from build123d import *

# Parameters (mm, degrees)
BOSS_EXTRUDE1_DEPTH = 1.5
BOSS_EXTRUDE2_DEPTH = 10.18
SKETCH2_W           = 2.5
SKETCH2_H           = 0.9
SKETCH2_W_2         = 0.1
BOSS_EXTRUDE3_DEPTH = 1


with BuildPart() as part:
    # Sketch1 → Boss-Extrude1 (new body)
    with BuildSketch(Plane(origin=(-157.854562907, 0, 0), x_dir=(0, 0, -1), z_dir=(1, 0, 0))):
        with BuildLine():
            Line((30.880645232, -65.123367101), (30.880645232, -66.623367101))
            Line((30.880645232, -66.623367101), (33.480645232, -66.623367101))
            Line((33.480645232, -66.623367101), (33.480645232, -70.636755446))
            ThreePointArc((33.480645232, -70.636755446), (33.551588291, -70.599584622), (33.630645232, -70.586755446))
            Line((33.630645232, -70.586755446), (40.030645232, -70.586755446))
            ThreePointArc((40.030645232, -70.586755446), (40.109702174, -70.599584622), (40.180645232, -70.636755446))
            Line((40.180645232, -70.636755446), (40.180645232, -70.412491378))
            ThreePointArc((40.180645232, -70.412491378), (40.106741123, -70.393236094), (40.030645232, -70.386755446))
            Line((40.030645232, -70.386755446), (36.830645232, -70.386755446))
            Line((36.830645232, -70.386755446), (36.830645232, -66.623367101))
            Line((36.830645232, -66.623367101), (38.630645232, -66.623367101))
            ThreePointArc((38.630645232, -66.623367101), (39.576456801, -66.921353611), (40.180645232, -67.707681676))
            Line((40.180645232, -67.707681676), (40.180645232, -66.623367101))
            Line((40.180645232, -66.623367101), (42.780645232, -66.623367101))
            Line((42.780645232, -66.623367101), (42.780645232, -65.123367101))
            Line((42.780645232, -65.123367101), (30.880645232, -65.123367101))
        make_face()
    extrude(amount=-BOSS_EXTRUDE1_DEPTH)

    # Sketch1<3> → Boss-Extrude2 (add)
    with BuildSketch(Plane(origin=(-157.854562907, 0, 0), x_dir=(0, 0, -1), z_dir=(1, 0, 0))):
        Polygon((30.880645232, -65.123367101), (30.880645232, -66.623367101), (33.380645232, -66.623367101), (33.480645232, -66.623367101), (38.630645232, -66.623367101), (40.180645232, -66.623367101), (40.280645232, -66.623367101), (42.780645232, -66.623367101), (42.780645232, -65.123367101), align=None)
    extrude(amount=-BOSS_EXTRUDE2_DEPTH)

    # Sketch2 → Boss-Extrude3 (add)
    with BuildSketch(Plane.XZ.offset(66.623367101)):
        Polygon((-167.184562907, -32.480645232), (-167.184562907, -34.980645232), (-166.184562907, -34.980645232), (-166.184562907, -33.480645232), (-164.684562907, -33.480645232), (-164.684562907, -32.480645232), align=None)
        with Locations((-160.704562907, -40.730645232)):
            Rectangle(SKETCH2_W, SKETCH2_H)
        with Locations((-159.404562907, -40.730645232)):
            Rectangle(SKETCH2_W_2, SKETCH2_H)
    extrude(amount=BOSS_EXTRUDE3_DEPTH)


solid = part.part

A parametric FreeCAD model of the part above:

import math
import FreeCAD as App
import Part
import Sketcher


def add_polygon(sketch, points):
    """Adds a closed chain of lines whose ends are joined by coincident constraints."""
    first, n = sketch.GeometryCount, len(points)
    for a, b in zip(points, points[1:] + points[:1]):
        sketch.addGeometry(Part.LineSegment(App.Vector(*a, 0), App.Vector(*b, 0)), False)
    for i in range(n):
        sketch.addConstraint(Sketcher.Constraint("Coincident", first + i, 2, first + (i + 1) % n, 1))

doc = App.newDocument("Part")
body = doc.addObject("PartDesign::Body", "Body")

# Sketch on YZ plane
sketch1 = body.newObject("Sketcher::SketchObject", "Sketch")
sketch1.AttachmentSupport = (doc.getObject("YZ_Plane"), [""])
sketch1.MapMode = "FlatFace"
sketch1.AttachmentOffset = App.Placement(App.Vector(0, 0, -157.854563), App.Rotation())
sketch1.addGeometry([
    Part.LineSegment(App.Vector(-65.12, -30.88, 0), App.Vector(-66.62, -30.88, 0)),  # 0
    Part.LineSegment(App.Vector(-66.62, -30.88, 0), App.Vector(-66.62, -33.48, 0)),  # 1
    Part.LineSegment(App.Vector(-66.62, -33.48, 0), App.Vector(-70.64, -33.48, 0)),  # 2
    Part.ArcOfCircle(Part.Circle(App.Vector(-70.84, -33.63, 0), App.Vector(0, 0, 1), 0.25), math.radians(0), math.radians(37)),  # 3
    Part.LineSegment(App.Vector(-70.59, -33.63, 0), App.Vector(-70.59, -40.03, 0)),  # 4
    Part.ArcOfCircle(Part.Circle(App.Vector(-70.84, -40.03, 0), App.Vector(0, 0, 1), 0.25), math.radians(-37), math.radians(0)),  # 5
    Part.LineSegment(App.Vector(-70.64, -40.18, 0), App.Vector(-70.41, -40.18, 0)),  # 6
    Part.ArcOfCircle(Part.Circle(App.Vector(-70.84, -40.03, 0), App.Vector(0, 0, 1), 0.45), math.radians(-19.47), math.radians(0)),  # 7
    Part.LineSegment(App.Vector(-70.39, -40.03, 0), App.Vector(-70.39, -36.83, 0)),  # 8
    Part.LineSegment(App.Vector(-70.39, -36.83, 0), App.Vector(-66.62, -36.83, 0)),  # 9
    Part.LineSegment(App.Vector(-66.62, -36.83, 0), App.Vector(-66.62, -38.63, 0)),  # 10
    Part.ArcOfCircle(Part.Circle(App.Vector(-68.27, -38.63, 0), App.Vector(0, 0, 1), 1.65), math.radians(-70), math.radians(0)),  # 11
    Part.LineSegment(App.Vector(-67.71, -40.18, 0), App.Vector(-66.62, -40.18, 0)),  # 12
    Part.LineSegment(App.Vector(-66.62, -40.18, 0), App.Vector(-66.62, -42.78, 0)),  # 13
    Part.LineSegment(App.Vector(-66.62, -42.78, 0), App.Vector(-65.12, -42.78, 0)),  # 14
    Part.LineSegment(App.Vector(-65.12, -42.78, 0), App.Vector(-65.12, -30.88, 0)),  # 15
], False)
sketch1.addConstraint([
    Sketcher.Constraint("Coincident", 0, 2, 1, 1),
    Sketcher.Constraint("Coincident", 1, 2, 2, 1),
    Sketcher.Constraint("Coincident", 2, 2, 3, 2),
    Sketcher.Constraint("Tangent", 3, 1, 4, 1),
    Sketcher.Constraint("Tangent", 4, 2, 5, 2),
    Sketcher.Constraint("Coincident", 5, 1, 6, 1),
    Sketcher.Constraint("Coincident", 6, 2, 7, 1),
    Sketcher.Constraint("Tangent", 7, 2, 8, 1),
    Sketcher.Constraint("Coincident", 8, 2, 9, 1),
    Sketcher.Constraint("Coincident", 9, 2, 10, 1),
    Sketcher.Constraint("Tangent", 10, 2, 11, 2),
    Sketcher.Constraint("Coincident", 11, 1, 12, 1),
    Sketcher.Constraint("Coincident", 12, 2, 13, 1),
    Sketcher.Constraint("Coincident", 13, 2, 14, 1),
    Sketcher.Constraint("Coincident", 14, 2, 15, 1),
    Sketcher.Constraint("Coincident", 15, 2, 0, 1),
    Sketcher.Constraint("Horizontal", 0),
    Sketcher.Constraint("Vertical", 1),
    Sketcher.Constraint("Horizontal", 2),
    Sketcher.Constraint("Vertical", 4),
    Sketcher.Constraint("Horizontal", 6),
    Sketcher.Constraint("Vertical", 8),
    Sketcher.Constraint("Horizontal", 9),
    Sketcher.Constraint("Vertical", 10),
    Sketcher.Constraint("Horizontal", 12),
    Sketcher.Constraint("Vertical", 13),
    Sketcher.Constraint("Horizontal", 14),
    Sketcher.Constraint("Vertical", 15),
    Sketcher.Constraint("Coincident", 7, 3, 5, 3),
    Sketcher.Constraint("Equal", 3, 5),
    Sketcher.Constraint("Horizontal", 6, 2, 11, 1),
    Sketcher.Constraint("Vertical", 2, 2, 5, 1),
    Sketcher.Constraint("Vertical", 1, 2, 9, 2),
    Sketcher.Constraint("Vertical", 10, 2, 12, 2),
    Sketcher.Constraint("Equal", 1, 13),
    Sketcher.Constraint("Radius", 3, 0.25),
    Sketcher.Constraint("Radius", 7, 0.45),
    Sketcher.Constraint("Radius", 11, 1.65),
    Sketcher.Constraint("DistanceX", 0, 2, 0, 1, 1.5),
    Sketcher.Constraint("DistanceY", 1, 2, 1, 1, 2.6),
    Sketcher.Constraint("DistanceY", 4, 2, 4, 1, 6.4),
    Sketcher.Constraint("DistanceY", 8, 1, 8, 2, 3.2),
    Sketcher.Constraint("DistanceY", 10, 2, 10, 1, 1.8),
    Sketcher.Constraint("DistanceY", 15, 1, 15, 2, 11.9),
    Sketcher.Constraint("DistanceX", 2, 2, 2, 1, 4.013388),
    Sketcher.Constraint("DistanceX", 6, 2, -1, 1, 70.412491),
    Sketcher.Constraint("DistanceY", 3, 3, -1, 1, 33.630645),
])
pad1 = body.newObject("PartDesign::Pad", "Pad")
pad1.Profile = sketch1
pad1.Length = 1.5
pad1.Reversed = True

# Sketch on YZ plane
sketch2 = body.newObject("Sketcher::SketchObject", "Sketch001")
sketch2.AttachmentSupport = (doc.getObject("YZ_Plane"), [""])
sketch2.MapMode = "FlatFace"
sketch2.AttachmentOffset = App.Placement(App.Vector(0, 0, -157.854563), App.Rotation())
add_polygon(sketch2, [(-65.1, -30.9), (-66.6, -30.9), (-66.6, -42.8), (-65.1, -42.8)])  # lines 0-3
sketch2.addConstraint([
    Sketcher.Constraint("Horizontal", 0),
    Sketcher.Constraint("Vertical", 1),
    Sketcher.Constraint("Horizontal", 2),
    Sketcher.Constraint("Vertical", 3),
    Sketcher.Constraint("DistanceX", 0, 2, 0, 1, 1.5),
    Sketcher.Constraint("DistanceY", 1, 2, 1, 1, 11.9),
    Sketcher.Constraint("DistanceX", 0, 2, -1, 1, 66.623367),
    Sketcher.Constraint("DistanceY", 0, 2, -1, 1, 30.880645),
])
pad2 = body.newObject("PartDesign::Pad", "Pad001")
pad2.Profile = sketch2
pad2.Length = 10.18
pad2.Reversed = True

# Sketch on XZ plane
sketch3 = body.newObject("Sketcher::SketchObject", "Sketch002")
sketch3.AttachmentSupport = (doc.getObject("XZ_Plane"), [""])
sketch3.MapMode = "FlatFace"
sketch3.AttachmentOffset = App.Placement(App.Vector(0, 0, 66.623367), App.Rotation())
add_polygon(sketch3, [(-167.2, -32.5), (-167.2, -35), (-166.2, -35), (-166.2, -33.5), (-164.7, -33.5), (-164.7, -32.5)])  # lines 0-5
add_polygon(sketch3, [(-162, -40.3), (-162, -41.2), (-159.4, -41.2), (-159.4, -40.3)])  # lines 6-9
sketch3.addConstraint([
    Sketcher.Constraint("Vertical", 0),
    Sketcher.Constraint("Horizontal", 1),
    Sketcher.Constraint("Vertical", 2),
    Sketcher.Constraint("Horizontal", 3),
    Sketcher.Constraint("Vertical", 4),
    Sketcher.Constraint("Horizontal", 5),
    Sketcher.Constraint("Vertical", 6),
    Sketcher.Constraint("Horizontal", 7),
    Sketcher.Constraint("Vertical", 8),
    Sketcher.Constraint("Horizontal", 9),
    Sketcher.Constraint("Equal", 5, 0),
    Sketcher.Constraint("Equal", 3, 2),
    Sketcher.Constraint("DistanceX", 1, 1, 1, 2, 1.0),
    Sketcher.Constraint("DistanceX", 3, 1, 3, 2, 1.5),
    Sketcher.Constraint("DistanceX", 7, 1, 7, 2, 2.6),
    Sketcher.Constraint("DistanceY", 6, 2, 6, 1, 0.9),
    Sketcher.Constraint("DistanceY", 6, 2, 1, 2, 6.2),
    Sketcher.Constraint("DistanceX", 1, 2, 6, 2, 4.23),
    Sketcher.Constraint("DistanceX", 0, 2, -1, 1, 167.184563),
    Sketcher.Constraint("DistanceY", 0, 2, -1, 1, 34.980645),
])
pad3 = body.newObject("PartDesign::Pad", "Pad002")
pad3.Profile = sketch3
pad3.Length = 1

doc.recompute()
